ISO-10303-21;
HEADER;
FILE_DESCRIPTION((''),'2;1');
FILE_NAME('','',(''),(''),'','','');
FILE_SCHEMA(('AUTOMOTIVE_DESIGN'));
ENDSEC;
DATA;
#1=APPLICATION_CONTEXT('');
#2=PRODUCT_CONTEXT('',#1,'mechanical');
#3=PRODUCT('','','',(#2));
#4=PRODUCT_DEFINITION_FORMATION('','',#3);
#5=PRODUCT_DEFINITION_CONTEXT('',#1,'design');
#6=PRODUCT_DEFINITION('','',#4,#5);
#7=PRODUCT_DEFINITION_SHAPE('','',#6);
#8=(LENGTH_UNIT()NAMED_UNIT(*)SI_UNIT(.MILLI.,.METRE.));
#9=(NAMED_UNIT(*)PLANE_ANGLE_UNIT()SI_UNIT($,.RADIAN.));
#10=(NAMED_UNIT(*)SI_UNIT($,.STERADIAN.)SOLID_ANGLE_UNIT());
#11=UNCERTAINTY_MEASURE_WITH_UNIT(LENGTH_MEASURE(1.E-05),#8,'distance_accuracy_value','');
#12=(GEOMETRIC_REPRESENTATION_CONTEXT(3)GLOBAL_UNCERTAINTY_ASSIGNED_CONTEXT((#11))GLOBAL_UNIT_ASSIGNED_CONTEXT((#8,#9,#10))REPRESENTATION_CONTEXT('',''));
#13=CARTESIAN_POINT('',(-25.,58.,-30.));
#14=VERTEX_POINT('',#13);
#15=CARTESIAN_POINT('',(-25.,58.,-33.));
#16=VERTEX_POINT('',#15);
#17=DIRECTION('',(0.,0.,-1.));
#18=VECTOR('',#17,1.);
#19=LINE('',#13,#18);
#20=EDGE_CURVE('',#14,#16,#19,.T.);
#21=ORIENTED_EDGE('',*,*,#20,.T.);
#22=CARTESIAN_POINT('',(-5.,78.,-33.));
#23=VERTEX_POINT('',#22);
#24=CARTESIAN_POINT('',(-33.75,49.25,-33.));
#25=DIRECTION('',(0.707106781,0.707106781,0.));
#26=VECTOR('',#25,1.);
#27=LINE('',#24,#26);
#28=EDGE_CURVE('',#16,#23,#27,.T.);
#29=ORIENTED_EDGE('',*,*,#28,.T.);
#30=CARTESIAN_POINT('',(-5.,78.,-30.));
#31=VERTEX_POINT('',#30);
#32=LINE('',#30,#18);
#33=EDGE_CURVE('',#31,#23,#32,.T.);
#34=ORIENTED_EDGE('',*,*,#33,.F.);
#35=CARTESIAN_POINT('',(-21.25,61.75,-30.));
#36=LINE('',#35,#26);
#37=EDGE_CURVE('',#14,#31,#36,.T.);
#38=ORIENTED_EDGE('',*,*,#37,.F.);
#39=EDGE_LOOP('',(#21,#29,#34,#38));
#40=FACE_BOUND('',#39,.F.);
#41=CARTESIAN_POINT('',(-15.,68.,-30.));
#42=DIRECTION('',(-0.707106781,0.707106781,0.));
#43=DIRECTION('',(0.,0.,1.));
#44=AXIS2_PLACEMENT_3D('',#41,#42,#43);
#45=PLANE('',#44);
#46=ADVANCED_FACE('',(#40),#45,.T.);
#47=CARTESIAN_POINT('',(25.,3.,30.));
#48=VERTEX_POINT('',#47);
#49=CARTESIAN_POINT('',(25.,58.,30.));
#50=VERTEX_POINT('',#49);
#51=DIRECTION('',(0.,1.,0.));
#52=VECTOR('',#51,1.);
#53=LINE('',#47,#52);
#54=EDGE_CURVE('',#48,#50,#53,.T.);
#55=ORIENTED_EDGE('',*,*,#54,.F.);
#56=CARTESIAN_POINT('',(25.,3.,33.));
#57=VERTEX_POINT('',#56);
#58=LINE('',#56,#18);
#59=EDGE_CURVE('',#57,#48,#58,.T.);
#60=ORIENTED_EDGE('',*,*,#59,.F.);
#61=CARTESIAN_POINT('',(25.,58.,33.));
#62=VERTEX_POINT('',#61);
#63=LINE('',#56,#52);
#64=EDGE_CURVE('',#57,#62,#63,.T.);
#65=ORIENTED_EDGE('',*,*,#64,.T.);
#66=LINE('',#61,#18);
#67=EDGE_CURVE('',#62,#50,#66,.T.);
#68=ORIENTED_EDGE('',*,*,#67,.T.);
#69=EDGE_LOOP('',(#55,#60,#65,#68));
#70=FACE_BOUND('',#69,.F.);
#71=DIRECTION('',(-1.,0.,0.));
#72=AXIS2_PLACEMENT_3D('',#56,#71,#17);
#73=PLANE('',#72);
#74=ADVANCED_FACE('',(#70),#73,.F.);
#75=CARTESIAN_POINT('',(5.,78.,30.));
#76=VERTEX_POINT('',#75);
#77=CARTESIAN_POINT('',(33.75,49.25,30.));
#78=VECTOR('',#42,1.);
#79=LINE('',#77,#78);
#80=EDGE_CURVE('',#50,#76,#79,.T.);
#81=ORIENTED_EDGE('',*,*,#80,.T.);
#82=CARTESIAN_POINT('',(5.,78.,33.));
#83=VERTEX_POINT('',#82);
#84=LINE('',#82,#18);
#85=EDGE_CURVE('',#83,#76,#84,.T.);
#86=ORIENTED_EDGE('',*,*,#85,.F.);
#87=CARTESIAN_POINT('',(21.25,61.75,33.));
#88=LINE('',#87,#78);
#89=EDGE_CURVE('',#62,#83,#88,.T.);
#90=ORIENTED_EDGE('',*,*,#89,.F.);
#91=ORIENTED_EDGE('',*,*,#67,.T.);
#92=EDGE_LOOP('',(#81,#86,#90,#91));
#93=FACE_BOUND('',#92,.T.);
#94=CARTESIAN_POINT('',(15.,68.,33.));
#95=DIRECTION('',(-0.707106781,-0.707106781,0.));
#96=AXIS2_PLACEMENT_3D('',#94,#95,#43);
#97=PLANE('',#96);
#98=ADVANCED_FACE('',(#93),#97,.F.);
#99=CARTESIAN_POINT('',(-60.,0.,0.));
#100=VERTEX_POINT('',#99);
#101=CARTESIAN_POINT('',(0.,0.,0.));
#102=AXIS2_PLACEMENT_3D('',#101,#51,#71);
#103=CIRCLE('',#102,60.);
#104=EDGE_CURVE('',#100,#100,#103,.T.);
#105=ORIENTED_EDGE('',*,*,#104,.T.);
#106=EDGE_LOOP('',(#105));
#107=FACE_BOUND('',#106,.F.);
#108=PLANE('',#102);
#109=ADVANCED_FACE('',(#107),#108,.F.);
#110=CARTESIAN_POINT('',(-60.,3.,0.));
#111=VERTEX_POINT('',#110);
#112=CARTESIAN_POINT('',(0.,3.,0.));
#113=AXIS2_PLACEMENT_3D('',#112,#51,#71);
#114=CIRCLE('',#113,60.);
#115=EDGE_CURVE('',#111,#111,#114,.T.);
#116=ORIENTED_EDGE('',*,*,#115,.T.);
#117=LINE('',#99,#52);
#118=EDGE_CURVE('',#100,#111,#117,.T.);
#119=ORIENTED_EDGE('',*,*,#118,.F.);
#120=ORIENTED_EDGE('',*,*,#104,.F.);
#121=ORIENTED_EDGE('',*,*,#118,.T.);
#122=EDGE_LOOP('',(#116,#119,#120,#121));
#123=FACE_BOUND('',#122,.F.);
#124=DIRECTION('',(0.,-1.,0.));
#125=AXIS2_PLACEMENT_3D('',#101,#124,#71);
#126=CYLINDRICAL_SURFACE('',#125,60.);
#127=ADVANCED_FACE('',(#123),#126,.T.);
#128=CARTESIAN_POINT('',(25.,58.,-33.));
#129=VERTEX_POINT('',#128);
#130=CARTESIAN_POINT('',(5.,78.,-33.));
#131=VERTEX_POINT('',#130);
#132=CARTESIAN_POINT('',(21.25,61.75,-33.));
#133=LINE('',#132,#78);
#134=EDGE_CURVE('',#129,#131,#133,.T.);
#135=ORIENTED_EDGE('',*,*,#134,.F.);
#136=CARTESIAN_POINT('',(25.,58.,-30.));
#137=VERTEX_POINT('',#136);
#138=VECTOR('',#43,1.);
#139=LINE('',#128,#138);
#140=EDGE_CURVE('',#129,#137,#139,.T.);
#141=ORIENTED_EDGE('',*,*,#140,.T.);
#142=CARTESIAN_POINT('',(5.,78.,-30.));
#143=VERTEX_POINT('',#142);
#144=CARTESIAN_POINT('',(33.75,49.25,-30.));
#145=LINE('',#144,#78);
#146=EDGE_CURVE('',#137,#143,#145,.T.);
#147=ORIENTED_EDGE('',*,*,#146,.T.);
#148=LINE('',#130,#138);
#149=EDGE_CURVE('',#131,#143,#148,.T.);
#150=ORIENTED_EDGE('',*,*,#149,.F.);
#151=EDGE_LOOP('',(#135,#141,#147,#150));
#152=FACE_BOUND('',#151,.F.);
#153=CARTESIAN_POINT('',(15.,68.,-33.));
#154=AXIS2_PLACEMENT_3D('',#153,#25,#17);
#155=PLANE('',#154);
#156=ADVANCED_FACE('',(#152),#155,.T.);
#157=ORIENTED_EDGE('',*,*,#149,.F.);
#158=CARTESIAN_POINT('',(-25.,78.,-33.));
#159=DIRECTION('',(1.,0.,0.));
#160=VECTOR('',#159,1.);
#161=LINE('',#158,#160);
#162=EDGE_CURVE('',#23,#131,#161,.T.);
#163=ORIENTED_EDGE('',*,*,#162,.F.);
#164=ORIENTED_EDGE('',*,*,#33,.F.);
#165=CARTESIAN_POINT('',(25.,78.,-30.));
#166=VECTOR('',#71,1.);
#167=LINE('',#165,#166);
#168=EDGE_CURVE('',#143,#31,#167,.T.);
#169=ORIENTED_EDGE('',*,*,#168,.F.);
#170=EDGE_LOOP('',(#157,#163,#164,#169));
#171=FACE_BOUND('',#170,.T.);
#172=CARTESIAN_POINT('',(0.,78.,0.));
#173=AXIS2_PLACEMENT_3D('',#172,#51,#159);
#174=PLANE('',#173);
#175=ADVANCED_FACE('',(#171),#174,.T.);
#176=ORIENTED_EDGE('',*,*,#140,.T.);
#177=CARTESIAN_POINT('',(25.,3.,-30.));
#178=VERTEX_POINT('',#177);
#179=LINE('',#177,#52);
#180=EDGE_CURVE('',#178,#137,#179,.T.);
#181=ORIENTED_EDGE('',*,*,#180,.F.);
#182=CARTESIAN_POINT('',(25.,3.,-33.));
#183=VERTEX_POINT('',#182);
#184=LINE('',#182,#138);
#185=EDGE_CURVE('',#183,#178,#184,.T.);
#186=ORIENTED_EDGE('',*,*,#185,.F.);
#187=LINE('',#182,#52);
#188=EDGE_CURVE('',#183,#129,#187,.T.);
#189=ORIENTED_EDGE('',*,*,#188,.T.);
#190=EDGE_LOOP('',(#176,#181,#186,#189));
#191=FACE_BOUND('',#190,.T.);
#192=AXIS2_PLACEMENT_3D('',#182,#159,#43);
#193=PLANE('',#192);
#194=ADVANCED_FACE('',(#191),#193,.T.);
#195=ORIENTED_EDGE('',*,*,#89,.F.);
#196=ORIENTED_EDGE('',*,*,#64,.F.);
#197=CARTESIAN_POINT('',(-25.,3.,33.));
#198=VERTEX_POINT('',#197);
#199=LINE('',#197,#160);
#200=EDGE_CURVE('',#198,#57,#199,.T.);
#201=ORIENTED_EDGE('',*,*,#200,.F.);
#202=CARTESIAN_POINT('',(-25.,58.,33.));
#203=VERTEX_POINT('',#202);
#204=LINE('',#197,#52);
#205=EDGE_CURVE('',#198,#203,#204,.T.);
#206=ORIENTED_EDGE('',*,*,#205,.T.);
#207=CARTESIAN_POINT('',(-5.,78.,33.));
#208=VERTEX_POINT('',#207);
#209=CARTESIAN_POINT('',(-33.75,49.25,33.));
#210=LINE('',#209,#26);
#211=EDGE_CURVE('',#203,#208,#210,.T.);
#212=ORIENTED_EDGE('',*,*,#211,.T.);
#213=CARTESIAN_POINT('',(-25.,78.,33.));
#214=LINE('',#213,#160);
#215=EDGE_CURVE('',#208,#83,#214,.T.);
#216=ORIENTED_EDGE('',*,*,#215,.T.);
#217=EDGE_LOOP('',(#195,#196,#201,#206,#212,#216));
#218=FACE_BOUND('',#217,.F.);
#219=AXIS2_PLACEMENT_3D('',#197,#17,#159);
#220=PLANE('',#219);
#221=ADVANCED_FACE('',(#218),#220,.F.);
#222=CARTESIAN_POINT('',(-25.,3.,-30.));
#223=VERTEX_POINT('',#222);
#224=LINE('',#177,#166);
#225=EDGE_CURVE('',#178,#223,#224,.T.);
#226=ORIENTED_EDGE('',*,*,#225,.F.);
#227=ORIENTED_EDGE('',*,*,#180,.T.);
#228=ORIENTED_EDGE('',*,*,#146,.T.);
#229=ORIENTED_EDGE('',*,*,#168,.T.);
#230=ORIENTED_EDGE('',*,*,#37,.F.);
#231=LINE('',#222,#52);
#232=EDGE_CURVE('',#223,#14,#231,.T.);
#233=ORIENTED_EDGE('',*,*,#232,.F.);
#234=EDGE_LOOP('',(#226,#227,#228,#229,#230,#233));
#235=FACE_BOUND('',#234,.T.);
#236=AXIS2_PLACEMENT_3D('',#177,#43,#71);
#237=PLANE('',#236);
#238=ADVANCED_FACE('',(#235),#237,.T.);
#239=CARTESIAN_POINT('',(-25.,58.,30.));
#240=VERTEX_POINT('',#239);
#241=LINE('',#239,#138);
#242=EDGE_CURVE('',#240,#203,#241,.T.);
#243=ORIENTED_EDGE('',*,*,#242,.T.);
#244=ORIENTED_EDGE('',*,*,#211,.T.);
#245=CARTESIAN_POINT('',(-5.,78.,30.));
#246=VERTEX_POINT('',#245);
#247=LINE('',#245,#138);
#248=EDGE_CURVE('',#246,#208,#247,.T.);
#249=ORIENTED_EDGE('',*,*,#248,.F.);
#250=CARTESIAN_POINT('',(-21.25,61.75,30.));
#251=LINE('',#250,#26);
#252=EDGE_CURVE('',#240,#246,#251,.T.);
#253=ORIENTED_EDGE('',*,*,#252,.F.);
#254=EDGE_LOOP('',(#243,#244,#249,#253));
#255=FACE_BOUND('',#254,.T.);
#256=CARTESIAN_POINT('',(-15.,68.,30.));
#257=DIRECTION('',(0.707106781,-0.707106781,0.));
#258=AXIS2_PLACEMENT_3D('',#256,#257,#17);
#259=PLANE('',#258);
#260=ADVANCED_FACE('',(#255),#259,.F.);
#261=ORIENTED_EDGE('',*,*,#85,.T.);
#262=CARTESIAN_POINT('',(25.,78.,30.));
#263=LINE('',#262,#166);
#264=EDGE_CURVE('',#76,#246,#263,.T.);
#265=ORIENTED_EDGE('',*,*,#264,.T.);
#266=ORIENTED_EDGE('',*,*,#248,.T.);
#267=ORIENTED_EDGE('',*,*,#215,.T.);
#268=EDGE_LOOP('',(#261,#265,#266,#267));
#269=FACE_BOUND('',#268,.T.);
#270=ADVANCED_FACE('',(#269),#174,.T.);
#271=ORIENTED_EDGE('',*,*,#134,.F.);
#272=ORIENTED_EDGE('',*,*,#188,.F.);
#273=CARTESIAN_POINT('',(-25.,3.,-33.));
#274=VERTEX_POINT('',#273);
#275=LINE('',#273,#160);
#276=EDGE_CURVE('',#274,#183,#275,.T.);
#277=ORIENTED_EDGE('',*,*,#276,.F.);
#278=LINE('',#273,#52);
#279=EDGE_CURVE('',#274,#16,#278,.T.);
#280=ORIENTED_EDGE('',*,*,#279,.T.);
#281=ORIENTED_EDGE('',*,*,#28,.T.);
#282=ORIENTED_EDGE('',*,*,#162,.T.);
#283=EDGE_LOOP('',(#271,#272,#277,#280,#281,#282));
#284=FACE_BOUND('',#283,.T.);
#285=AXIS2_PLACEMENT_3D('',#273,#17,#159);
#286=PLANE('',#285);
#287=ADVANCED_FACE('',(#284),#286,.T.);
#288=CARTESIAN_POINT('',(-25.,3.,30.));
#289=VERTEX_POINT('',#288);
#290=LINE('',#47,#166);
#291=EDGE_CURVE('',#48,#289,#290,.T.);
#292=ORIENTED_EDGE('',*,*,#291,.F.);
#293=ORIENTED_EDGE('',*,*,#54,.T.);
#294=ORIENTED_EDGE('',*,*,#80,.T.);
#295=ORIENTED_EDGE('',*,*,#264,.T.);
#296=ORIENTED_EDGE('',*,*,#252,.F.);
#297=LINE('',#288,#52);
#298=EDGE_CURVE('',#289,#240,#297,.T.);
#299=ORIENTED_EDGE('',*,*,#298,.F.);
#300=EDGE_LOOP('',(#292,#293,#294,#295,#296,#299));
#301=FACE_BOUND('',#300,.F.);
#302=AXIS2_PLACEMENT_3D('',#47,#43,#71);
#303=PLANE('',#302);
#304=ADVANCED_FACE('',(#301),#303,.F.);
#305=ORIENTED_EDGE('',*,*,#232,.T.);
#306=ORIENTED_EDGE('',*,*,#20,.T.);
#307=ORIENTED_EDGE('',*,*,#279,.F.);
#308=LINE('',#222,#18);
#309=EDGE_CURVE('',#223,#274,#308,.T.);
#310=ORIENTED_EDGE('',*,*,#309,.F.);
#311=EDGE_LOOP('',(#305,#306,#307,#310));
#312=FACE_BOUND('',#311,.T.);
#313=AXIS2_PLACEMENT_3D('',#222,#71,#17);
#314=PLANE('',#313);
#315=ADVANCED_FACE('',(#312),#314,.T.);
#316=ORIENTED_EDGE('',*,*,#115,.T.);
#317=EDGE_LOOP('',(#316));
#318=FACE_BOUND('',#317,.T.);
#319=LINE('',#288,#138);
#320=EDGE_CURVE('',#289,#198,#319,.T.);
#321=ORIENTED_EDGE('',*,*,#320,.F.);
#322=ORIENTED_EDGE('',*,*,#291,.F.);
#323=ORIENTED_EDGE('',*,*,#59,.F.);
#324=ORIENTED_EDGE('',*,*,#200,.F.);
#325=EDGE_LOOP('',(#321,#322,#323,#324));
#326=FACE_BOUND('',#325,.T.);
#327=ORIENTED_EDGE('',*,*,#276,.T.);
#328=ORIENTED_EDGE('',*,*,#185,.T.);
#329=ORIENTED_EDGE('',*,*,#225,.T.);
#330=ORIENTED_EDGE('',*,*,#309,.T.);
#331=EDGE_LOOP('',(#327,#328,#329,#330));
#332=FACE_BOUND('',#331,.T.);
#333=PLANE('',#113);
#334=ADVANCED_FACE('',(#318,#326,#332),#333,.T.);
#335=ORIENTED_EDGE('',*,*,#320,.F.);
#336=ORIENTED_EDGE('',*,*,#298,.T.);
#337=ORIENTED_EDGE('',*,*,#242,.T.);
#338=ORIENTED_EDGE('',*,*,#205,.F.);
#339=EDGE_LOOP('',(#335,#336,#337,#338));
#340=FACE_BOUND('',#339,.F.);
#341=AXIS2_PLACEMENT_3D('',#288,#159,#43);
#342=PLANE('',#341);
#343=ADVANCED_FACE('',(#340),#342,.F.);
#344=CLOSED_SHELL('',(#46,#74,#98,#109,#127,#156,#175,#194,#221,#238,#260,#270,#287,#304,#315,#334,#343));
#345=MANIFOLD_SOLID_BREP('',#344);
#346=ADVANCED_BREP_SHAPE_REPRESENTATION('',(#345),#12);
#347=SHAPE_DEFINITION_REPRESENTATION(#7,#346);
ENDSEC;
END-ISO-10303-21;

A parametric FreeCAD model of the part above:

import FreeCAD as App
import Part
import Sketcher
from FreeCAD import Vector


def edges_at(feature, points):
    """Names of the edges that pass closest to the given points."""
    edges = feature.Shape.Edges
    near = lambda p: min(range(len(edges)), key=lambda i: edges[i].distToShape(Part.Vertex(*p))[0])
    return sorted({f"Edge{near(p) + 1}" for p in points})

doc = App.newDocument("Part")
params = doc.addObject("Spreadsheet::Sheet", "Params")
for row, (alias, value) in enumerate([
    ("sketch1_diameter", "120 mm"),
    ("pad1_length", "3 mm"),
    ("sketch2_width", "50 mm"),
    ("sketch2_height", "3 mm"),
    ("pad2_length", "75 mm"),
    ("chamfer_size", "20 mm"),
], start=1):
    params.set(f"A{row}", alias)
    params.set(f"B{row}", "=" + value)
    params.setAlias(f"B{row}", alias)

body = doc.addObject("PartDesign::Body", "Body")

sketch1 = body.newObject("Sketcher::SketchObject", "Sketch")
sketch1.AttachmentSupport = (doc.getObject("XZ_Plane"), [""])
sketch1.MapMode = "FlatFace"
sketch1.addGeometry(Part.Circle(Vector(0, 0, 0), Vector(0, 0, 1), 60), False)
sketch1.addConstraint([
    Sketcher.Constraint("Coincident", 0, 3, -1, 1),
    Sketcher.Constraint("Diameter", 0, 120.0),
])
sketch1.setExpression("Constraints[1]", "Params.sketch1_diameter")
pad1 = body.newObject("PartDesign::Pad", "Pad")
pad1.Profile = sketch1
pad1.setExpression("Length", "Params.pad1_length")
pad1.Reversed = True

sketch2 = body.newObject("Sketcher::SketchObject", "Sketch001")
sketch2.AttachmentSupport = (doc.getObject("XZ_Plane"), [""])
sketch2.MapMode = "FlatFace"
sketch2.AttachmentOffset = App.Placement(Vector(0, 0, -3), App.Rotation())
sketch2.addGeometry([
    Part.LineSegment(Vector(-25, 30, 0), Vector(-25, 33, 0)),
    Part.LineSegment(Vector(-25, 33, 0), Vector(25, 33, 0)),
    Part.LineSegment(Vector(25, 33, 0), Vector(25, 30, 0)),
    Part.LineSegment(Vector(25, 30, 0), Vector(-25, 30, 0)),
    Part.LineSegment(Vector(25, -33, 0), Vector(-25, -33, 0)),
    Part.LineSegment(Vector(-25, -33, 0), Vector(-25, -30, 0)),
    Part.LineSegment(Vector(-25, -30, 0), Vector(25, -30, 0)),
    Part.LineSegment(Vector(25, -30, 0), Vector(25, -33, 0)),
], False)
sketch2.addConstraint([
    Sketcher.Constraint("Coincident", 0, 2, 1, 1),
    Sketcher.Constraint("Coincident", 1, 2, 2, 1),
    Sketcher.Constraint("Coincident", 2, 2, 3, 1),
    Sketcher.Constraint("Coincident", 3, 2, 0, 1),
    Sketcher.Constraint("Coincident", 4, 2, 5, 1),
    Sketcher.Constraint("Coincident", 5, 2, 6, 1),
    Sketcher.Constraint("Coincident", 6, 2, 7, 1),
    Sketcher.Constraint("Coincident", 7, 2, 4, 1),
    Sketcher.Constraint("Vertical", 0),
    Sketcher.Constraint("Horizontal", 1),
    Sketcher.Constraint("Vertical", 2),
    Sketcher.Constraint("Horizontal", 3),
    Sketcher.Constraint("Horizontal", 4),
    Sketcher.Constraint("Vertical", 5),
    Sketcher.Constraint("Horizontal", 6),
    Sketcher.Constraint("Vertical", 7),
    Sketcher.Constraint("Symmetric", 1, 2, 4, 2, -1, 1),
    Sketcher.Constraint("Symmetric", 3, 2, 6, 2, -1, 1),
    Sketcher.Constraint("Vertical", 3, 2, 4, 2),
    Sketcher.Constraint("DistanceX", 1, 1, 1, 2, 50.0),
    Sketcher.Constraint("DistanceY", 0, 1, 0, 2, 3.0),
    Sketcher.Constraint("DistanceY", -1, 1, 2, 2, 30.0),
])
sketch2.setExpression("Constraints[19]", "Params.sketch2_width")
sketch2.setExpression("Constraints[20]", "Params.sketch2_height")
pad2 = body.newObject("PartDesign::Pad", "Pad001")
pad2.Profile = sketch2
pad2.setExpression("Length", "Params.pad2_length")
pad2.Reversed = True
doc.recompute()

chamfer = body.newObject("PartDesign::Chamfer", "Chamfer")
chamfer.Base = (pad2, edges_at(pad2, [
    (25, 78, 31.5),
    (25, 78, -31.5),
    (-25, 78, -31.5),
    (-25, 78, 31.5),
]))
chamfer.setExpression("Size", "Params.chamfer_size")

doc.recompute()
